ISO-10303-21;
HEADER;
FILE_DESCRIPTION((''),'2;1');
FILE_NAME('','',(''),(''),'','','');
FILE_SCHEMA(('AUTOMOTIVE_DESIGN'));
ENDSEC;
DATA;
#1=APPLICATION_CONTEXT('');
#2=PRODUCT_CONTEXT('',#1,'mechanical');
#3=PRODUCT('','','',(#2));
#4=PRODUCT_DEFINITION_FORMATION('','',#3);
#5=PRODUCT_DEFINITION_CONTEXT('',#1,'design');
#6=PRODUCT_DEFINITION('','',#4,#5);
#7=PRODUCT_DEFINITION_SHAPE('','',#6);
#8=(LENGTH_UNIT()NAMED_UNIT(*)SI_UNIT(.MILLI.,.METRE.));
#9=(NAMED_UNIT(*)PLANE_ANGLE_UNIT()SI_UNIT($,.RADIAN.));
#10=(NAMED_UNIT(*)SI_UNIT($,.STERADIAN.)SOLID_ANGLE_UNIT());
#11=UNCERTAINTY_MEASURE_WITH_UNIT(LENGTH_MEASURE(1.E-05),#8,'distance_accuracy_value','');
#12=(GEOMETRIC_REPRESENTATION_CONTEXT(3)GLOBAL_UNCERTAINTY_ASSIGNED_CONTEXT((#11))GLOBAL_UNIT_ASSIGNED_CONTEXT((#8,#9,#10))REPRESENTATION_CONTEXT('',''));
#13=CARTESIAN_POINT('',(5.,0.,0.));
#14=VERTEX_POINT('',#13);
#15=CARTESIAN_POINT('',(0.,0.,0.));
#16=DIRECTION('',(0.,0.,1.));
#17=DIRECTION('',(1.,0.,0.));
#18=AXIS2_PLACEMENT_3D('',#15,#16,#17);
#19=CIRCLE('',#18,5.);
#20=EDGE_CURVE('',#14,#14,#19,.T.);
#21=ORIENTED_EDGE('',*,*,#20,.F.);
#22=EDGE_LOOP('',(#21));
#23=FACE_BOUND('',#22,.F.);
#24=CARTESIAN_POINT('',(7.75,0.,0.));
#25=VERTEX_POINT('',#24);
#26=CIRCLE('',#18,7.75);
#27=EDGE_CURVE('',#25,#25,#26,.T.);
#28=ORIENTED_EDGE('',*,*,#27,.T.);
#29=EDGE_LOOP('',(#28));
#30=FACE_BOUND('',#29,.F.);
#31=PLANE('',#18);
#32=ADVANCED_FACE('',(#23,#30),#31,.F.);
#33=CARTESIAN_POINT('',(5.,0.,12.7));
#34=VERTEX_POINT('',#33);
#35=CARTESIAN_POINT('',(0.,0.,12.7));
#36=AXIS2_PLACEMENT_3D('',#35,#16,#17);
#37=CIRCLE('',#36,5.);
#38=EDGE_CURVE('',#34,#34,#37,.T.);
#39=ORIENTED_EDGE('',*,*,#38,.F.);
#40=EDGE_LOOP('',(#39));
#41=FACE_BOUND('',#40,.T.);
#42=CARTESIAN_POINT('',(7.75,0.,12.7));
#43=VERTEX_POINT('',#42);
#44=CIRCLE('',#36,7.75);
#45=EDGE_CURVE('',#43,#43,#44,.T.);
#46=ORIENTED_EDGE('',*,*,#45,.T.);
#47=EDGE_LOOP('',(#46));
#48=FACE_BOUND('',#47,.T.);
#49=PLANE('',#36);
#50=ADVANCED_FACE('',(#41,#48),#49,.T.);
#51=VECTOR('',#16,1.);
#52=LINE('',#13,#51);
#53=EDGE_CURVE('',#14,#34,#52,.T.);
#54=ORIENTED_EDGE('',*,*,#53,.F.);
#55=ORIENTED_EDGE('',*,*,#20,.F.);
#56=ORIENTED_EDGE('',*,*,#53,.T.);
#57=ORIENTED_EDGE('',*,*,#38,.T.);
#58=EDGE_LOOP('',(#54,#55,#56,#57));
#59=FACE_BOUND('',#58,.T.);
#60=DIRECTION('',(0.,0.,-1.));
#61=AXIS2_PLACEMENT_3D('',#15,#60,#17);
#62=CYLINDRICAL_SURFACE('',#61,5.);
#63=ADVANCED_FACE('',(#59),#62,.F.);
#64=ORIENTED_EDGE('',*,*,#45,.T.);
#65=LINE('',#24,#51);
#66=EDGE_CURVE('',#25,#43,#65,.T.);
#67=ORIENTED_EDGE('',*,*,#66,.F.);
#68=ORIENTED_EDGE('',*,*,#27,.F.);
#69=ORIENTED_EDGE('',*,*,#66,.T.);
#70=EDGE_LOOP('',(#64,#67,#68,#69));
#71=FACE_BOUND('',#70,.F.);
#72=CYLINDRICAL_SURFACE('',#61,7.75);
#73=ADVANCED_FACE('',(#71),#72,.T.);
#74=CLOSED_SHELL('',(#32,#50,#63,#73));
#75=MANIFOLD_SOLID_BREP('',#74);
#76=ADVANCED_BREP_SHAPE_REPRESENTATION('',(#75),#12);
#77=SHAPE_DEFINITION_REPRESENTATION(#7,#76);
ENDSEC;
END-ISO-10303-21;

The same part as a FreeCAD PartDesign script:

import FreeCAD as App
import Part
import Sketcher

V = App.Vector

doc = App.newDocument("Part")
body = doc.addObject("PartDesign::Body", "Body")

# Sketch on XY plane
sketch1 = body.newObject("Sketcher::SketchObject", "Sketch")
sketch1.AttachmentSupport = (doc.getObject("XY_Plane"), [""])
sketch1.MapMode = "FlatFace"
sketch1.addGeometry([
    Part.Circle(V(0, 0, 0), V(0, 0, 1), 8),
    Part.Circle(V(0, 0, 0), V(0, 0, 1), 5),
], False)
sketch1.addConstraint([
    Sketcher.Constraint("Coincident", 0, 3, -1, 1),
    Sketcher.Constraint("Coincident", 1, 3, -1, 1),
    Sketcher.Constraint("Diameter", 1, 10.0),
    Sketcher.Constraint("Diameter", 0, 15.5),
])
pad1 = body.newObject("PartDesign::Pad", "Pad")
pad1.Profile = sketch1
pad1.Length = 12.7

doc.recompute()
